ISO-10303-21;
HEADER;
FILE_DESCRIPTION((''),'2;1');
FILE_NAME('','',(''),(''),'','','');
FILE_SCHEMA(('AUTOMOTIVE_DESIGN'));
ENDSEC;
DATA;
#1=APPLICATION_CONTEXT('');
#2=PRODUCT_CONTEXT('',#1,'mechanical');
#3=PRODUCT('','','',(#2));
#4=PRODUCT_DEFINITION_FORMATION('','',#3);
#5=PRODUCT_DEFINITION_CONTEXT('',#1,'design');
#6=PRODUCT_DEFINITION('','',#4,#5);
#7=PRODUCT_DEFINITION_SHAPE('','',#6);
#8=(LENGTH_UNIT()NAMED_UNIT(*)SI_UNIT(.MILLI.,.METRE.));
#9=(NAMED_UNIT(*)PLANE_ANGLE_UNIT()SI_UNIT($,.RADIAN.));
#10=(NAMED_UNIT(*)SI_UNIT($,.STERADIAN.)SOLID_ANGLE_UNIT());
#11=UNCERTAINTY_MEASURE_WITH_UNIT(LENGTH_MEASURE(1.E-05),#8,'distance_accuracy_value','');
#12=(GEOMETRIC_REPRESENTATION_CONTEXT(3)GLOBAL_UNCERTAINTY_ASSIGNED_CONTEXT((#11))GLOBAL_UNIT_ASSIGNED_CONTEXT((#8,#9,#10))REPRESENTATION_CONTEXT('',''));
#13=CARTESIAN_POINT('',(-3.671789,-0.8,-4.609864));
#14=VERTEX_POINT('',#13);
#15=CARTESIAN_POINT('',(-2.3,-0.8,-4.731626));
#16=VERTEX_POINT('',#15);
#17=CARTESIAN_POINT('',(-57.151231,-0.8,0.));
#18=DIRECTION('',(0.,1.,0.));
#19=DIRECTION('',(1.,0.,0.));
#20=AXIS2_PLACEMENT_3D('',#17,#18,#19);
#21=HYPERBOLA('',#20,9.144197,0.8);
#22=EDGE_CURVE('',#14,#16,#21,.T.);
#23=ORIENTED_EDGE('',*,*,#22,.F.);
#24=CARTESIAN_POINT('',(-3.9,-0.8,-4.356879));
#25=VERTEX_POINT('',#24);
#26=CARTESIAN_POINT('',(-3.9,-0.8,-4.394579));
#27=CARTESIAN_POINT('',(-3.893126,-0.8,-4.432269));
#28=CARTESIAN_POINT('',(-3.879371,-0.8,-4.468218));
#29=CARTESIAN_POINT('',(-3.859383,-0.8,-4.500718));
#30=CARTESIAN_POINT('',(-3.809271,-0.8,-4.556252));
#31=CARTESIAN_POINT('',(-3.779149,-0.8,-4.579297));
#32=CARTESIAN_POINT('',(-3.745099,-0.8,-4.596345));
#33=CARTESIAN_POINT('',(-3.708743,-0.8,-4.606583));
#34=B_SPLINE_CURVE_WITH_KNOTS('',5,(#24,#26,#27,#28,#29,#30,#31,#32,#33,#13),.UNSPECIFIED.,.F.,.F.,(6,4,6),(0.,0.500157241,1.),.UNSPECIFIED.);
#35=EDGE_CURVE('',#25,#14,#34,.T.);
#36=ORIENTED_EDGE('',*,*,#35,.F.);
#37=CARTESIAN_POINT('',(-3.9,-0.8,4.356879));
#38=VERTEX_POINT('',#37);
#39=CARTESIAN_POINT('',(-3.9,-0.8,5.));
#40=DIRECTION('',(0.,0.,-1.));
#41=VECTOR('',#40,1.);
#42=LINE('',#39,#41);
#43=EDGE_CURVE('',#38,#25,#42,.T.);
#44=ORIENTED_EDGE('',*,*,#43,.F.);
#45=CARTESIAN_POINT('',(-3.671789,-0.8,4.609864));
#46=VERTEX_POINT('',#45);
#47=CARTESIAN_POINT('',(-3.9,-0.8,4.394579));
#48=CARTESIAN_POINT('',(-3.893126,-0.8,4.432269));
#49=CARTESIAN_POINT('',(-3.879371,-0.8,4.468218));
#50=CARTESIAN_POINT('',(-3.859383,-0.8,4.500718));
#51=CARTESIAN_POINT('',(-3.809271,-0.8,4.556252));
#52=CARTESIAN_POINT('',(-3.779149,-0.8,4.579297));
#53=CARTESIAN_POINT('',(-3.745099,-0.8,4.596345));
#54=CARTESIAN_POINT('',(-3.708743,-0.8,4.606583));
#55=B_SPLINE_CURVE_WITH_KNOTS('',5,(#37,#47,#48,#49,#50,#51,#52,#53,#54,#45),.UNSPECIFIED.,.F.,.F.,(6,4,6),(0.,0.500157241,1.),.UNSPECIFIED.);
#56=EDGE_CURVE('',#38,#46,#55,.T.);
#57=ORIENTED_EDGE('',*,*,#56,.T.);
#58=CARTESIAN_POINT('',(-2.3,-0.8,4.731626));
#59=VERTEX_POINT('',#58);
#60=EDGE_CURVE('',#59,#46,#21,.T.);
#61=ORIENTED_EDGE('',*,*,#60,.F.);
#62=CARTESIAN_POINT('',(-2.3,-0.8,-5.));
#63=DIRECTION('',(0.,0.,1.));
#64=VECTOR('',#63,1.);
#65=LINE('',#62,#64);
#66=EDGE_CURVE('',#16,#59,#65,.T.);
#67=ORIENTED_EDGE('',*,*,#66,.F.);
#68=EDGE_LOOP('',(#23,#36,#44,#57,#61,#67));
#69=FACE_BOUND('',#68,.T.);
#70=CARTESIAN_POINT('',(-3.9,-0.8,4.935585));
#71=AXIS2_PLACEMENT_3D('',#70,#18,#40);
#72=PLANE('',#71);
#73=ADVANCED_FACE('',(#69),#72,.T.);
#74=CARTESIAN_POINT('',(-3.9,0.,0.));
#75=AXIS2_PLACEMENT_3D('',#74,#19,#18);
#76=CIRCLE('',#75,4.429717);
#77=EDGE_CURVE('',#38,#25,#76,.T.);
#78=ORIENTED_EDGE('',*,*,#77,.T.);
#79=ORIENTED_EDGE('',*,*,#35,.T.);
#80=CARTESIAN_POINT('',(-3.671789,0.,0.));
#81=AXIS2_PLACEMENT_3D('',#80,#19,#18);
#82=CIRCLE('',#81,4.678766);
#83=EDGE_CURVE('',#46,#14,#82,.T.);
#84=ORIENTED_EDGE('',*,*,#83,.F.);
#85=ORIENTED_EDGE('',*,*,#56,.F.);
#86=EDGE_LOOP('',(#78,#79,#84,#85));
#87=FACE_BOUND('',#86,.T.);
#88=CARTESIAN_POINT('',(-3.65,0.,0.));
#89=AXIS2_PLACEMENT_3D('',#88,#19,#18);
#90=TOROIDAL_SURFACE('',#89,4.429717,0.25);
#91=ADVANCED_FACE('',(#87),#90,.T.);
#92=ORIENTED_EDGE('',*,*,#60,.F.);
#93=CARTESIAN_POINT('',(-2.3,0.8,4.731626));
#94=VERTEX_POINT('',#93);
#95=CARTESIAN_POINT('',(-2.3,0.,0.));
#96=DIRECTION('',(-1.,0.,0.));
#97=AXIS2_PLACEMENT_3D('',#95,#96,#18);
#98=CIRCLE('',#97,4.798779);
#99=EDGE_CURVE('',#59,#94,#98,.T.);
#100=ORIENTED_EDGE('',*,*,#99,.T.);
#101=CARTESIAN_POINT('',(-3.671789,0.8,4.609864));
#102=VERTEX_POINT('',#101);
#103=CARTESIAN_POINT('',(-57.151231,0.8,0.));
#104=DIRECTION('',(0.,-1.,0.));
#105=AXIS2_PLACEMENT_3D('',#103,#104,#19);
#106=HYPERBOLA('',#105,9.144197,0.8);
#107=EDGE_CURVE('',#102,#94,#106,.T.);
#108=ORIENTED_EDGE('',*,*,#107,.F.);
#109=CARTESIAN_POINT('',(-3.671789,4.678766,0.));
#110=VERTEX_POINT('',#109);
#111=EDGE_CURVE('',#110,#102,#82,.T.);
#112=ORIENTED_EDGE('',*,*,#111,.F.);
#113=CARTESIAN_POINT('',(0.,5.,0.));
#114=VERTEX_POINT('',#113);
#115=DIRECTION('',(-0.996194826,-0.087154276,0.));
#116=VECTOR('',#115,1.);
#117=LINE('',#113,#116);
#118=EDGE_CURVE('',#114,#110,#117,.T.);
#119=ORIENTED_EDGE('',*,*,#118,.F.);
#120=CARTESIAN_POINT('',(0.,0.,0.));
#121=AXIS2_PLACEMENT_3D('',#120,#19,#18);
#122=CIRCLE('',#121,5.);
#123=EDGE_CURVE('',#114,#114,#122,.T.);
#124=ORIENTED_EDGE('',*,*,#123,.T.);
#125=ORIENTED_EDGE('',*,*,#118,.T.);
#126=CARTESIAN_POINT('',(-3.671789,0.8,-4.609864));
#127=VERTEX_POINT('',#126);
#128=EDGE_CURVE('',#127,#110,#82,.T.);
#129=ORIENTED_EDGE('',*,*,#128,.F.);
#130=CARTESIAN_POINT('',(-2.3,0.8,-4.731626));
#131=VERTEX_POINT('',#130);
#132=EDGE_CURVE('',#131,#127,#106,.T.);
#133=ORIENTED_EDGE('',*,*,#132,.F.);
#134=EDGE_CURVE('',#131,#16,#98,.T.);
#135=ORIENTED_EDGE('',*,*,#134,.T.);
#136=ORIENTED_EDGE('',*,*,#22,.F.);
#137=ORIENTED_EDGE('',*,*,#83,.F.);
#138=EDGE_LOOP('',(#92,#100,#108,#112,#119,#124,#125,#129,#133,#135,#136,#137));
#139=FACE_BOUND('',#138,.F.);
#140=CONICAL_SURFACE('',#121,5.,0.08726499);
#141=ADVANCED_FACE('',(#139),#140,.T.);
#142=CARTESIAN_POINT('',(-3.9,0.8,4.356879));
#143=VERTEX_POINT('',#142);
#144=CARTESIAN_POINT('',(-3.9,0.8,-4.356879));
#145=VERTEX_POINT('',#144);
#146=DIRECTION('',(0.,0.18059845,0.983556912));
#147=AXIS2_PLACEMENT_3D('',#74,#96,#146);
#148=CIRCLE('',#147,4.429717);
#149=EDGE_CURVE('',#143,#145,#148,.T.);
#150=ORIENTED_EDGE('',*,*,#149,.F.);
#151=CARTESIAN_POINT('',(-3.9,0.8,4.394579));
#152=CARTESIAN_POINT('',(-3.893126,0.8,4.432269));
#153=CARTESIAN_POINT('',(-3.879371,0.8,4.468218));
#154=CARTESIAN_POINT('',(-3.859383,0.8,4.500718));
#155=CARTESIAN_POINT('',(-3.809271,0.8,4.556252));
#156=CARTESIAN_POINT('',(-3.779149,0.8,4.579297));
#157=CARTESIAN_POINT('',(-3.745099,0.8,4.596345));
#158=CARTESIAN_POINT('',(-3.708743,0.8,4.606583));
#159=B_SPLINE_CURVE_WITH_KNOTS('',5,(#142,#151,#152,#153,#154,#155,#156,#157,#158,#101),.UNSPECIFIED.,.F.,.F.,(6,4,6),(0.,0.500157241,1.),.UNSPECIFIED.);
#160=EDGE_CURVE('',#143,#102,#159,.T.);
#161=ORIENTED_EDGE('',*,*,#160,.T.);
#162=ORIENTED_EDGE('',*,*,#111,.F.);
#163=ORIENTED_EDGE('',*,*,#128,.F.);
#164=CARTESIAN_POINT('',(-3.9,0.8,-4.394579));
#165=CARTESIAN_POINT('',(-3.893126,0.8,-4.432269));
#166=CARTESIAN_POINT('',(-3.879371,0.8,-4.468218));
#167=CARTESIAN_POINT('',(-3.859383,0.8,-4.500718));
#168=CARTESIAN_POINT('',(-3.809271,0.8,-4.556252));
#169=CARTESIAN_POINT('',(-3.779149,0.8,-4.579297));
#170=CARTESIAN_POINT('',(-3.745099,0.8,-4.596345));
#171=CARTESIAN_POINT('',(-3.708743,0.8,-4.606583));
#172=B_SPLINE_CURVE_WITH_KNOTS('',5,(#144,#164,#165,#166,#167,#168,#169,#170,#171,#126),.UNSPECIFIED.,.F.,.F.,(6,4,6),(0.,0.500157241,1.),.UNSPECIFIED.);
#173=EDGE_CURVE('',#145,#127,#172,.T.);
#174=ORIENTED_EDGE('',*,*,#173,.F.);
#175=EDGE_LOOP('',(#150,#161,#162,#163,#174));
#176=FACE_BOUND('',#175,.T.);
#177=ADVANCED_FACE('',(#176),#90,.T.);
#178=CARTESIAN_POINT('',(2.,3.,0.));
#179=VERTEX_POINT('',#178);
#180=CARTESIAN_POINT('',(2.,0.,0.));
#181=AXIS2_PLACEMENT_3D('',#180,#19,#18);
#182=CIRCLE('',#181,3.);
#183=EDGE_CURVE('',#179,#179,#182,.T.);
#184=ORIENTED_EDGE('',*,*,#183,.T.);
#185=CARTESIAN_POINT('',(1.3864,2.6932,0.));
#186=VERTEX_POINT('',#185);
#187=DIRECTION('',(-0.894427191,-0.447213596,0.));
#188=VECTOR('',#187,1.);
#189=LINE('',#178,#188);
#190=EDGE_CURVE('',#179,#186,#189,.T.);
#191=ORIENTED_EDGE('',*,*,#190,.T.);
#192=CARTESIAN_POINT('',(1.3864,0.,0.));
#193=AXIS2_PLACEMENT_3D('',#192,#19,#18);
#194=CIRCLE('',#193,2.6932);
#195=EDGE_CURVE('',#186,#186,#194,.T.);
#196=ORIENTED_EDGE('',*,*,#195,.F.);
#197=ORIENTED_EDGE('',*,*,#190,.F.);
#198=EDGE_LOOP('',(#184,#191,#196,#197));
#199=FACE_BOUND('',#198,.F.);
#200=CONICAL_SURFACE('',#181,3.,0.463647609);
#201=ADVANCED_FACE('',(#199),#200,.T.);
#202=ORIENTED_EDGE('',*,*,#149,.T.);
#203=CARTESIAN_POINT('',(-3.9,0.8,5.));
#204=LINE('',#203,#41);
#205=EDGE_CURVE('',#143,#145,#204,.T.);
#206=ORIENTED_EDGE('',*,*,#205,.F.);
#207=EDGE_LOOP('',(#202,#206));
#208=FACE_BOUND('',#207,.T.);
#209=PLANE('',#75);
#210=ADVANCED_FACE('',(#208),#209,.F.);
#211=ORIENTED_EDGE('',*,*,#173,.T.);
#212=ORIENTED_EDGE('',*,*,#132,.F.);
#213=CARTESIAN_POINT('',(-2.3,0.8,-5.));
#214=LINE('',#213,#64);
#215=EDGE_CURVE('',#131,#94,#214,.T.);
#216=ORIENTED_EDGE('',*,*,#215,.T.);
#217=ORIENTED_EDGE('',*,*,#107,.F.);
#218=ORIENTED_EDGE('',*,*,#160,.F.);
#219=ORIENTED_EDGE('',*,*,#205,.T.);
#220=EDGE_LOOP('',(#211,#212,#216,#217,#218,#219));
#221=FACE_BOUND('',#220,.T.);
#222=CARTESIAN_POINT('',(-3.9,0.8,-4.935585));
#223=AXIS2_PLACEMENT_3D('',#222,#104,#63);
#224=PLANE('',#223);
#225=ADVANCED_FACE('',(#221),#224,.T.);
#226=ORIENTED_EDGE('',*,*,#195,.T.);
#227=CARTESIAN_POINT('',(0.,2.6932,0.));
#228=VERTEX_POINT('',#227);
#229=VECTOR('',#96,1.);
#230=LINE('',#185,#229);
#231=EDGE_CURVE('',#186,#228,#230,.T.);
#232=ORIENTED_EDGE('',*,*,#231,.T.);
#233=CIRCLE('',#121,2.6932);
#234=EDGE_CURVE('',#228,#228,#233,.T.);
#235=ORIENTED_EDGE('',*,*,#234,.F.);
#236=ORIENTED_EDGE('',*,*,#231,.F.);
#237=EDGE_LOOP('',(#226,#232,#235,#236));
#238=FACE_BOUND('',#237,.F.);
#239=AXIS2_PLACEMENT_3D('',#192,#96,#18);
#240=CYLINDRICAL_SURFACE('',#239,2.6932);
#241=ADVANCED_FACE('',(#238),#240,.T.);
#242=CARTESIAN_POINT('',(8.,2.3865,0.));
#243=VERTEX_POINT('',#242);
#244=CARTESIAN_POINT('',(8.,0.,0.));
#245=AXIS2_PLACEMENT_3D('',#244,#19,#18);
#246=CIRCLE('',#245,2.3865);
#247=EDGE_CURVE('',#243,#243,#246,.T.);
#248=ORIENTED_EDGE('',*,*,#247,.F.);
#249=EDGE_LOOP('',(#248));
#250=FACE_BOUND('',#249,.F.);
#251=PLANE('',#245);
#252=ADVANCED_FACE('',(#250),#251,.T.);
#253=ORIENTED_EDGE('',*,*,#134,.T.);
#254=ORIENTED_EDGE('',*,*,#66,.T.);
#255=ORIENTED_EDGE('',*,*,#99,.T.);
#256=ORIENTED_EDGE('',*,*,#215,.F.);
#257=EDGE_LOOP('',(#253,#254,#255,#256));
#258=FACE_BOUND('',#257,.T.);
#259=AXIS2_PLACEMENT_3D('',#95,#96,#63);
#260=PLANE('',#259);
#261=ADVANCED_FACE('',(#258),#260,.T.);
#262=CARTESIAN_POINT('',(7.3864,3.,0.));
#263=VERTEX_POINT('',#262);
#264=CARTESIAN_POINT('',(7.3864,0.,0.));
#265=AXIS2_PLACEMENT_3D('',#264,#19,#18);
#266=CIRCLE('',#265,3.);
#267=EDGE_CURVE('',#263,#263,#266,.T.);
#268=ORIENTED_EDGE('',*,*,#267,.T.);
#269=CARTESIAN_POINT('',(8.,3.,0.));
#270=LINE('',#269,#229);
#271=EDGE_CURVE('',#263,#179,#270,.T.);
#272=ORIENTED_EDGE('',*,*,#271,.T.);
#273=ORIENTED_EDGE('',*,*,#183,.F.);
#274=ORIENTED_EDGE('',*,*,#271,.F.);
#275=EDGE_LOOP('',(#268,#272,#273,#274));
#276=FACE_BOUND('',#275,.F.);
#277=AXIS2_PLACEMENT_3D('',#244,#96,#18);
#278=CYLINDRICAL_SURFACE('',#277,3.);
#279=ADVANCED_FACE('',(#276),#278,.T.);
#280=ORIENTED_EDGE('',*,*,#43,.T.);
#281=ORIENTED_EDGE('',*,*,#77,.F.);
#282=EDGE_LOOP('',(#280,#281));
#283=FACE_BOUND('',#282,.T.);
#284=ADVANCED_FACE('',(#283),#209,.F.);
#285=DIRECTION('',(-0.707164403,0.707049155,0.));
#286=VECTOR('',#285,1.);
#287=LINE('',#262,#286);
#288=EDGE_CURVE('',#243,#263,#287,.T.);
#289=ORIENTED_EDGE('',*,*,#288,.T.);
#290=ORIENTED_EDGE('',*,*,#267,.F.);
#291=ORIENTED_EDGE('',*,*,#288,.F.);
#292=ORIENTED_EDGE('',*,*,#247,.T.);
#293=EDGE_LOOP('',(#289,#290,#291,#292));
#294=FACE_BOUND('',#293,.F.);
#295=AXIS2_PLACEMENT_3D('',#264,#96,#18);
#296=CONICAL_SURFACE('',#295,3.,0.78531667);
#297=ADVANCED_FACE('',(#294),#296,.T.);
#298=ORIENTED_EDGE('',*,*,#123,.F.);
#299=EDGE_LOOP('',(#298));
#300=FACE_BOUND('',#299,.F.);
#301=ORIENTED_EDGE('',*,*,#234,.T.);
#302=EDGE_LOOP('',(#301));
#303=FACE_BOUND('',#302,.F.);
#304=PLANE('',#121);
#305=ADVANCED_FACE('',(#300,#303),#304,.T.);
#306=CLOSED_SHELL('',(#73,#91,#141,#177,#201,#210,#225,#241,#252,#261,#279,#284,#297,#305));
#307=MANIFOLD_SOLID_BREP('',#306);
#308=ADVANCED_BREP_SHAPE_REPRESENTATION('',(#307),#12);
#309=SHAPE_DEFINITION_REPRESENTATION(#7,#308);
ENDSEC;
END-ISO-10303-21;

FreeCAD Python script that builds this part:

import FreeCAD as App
import Part
import Sketcher

V = App.Vector
Q = App.Units.Quantity


def edges_at(feature, points):
    """Names of the edges that pass closest to the given points."""
    edges = feature.Shape.Edges
    near = lambda p: min(range(len(edges)), key=lambda i: edges[i].distToShape(Part.Vertex(*p))[0])
    return sorted({f"Edge{near(p) + 1}" for p in points})


def add_polygon(sketch, points):
    """Adds a closed chain of lines whose ends are joined by coincident constraints."""
    first, n = sketch.GeometryCount, len(points)
    for a, b in zip(points, points[1:] + points[:1]):
        sketch.addGeometry(Part.LineSegment(App.Vector(*a, 0), App.Vector(*b, 0)), False)
    for i in range(n):
        sketch.addConstraint(Sketcher.Constraint("Coincident", first + i, 2, first + (i + 1) % n, 1))

doc = App.newDocument("Part")
body = doc.addObject("PartDesign::Body", "Body")

sketch1 = body.newObject("Sketcher::SketchObject", "Sketch")
sketch1.AttachmentSupport = (doc.getObject("XY_Plane"), [""])
sketch1.MapMode = "FlatFace"
add_polygon(sketch1, [(-3.9, 4.6588), (-3.9, 0), (8, 0), (8, 3), (2, 3), (1.3864, 2.6932), (0, 2.6932), (0, 5)])
sketch1.addConstraint(Sketcher.Constraint("Vertical", 0))
sketch1.addConstraint(Sketcher.Constraint("Horizontal", 1))
sketch1.addConstraint(Sketcher.Constraint("Vertical", 2))
sketch1.addConstraint(Sketcher.Constraint("Horizontal", 3))
sketch1.addConstraint(Sketcher.Constraint("Horizontal", 5))
sketch1.addConstraint(Sketcher.Constraint("Vertical", 6))
sketch1.addConstraint(Sketcher.Constraint("PointOnObject", 0, 2, -1))
sketch1.addConstraint(Sketcher.Constraint("PointOnObject", 5, 2, -2))
sketch1.addConstraint(Sketcher.Constraint("Angle", 7, Q("-175 deg")))
sketch1.addConstraint(Sketcher.Constraint("DistanceX", 3, 2, 3, 1, 6.0))
sketch1.addConstraint(Sketcher.Constraint("DistanceX", 0, 2, -1, 1, 3.9))
sketch1.addConstraint(Sketcher.Constraint("DistanceX", -1, 1, 1, 2, 8.0))
sketch1.addConstraint(Sketcher.Constraint("DistanceY", -1, 1, 6, 2, 5.0))
sketch1.addConstraint(Sketcher.Constraint("DistanceX", 4, 2, 3, 2, 0.6136))
sketch1.addConstraint(Sketcher.Constraint("Distance", 4, Q("0.027 in")))
sketch1.addConstraint(Sketcher.Constraint("DistanceY", 2, 1, 2, 2, Q("0.1181 in")))
revolution = body.newObject("PartDesign::Revolution", "Revolution")
revolution.Profile = sketch1
revolution.ReferenceAxis = (sketch1, ["H_Axis"])
revolution.Angle = 360
doc.recompute()

fillet = body.newObject("PartDesign::Fillet", "Fillet")
fillet.Base = (revolution, edges_at(revolution, [(-3.9, -4.659, 0)]))
fillet.Radius = 0.25

sketch2 = body.newObject("Sketcher::SketchObject", "Sketch001")
sketch2.AttachmentSupport = (doc.getObject("YZ_Plane"), [""])
sketch2.MapMode = "FlatFace"
sketch2.AttachmentOffset = App.Placement(V(0, 0, -3.9), App.Rotation())
add_polygon(sketch2, [(-0.8, 5), (0.8, 5), (0.8, -5), (-0.8, -5)])
sketch2.addConstraint(Sketcher.Constraint("Horizontal", 0))
sketch2.addConstraint(Sketcher.Constraint("Vertical", 1))
sketch2.addConstraint(Sketcher.Constraint("Horizontal", 2))
sketch2.addConstraint(Sketcher.Constraint("Vertical", 3))
sketch2.addConstraint(Sketcher.Constraint("Symmetric", 0, 2, 2, 2, -1, 1))
sketch2.addConstraint(Sketcher.Constraint("DistanceX", 0, 1, 0, 2, Q("0.063 in")))
sketch2.addConstraint(Sketcher.Constraint("DistanceY", 1, 2, 1, 1, Q("0.3937 in")))
pocket1 = body.newObject("PartDesign::Pocket", "Pocket")
pocket1.Profile = sketch2
pocket1.Length = Q("0.0629921 in")
pocket1.Reversed = True
doc.recompute()

chamfer = body.newObject("PartDesign::Chamfer", "Chamfer")
chamfer.Base = (pocket1, edges_at(pocket1, [(8, -3, 0)]))
chamfer.ChamferType = "Two distances"
chamfer.Size = 0.6135
chamfer.Size2 = 0.6136

doc.recompute()
